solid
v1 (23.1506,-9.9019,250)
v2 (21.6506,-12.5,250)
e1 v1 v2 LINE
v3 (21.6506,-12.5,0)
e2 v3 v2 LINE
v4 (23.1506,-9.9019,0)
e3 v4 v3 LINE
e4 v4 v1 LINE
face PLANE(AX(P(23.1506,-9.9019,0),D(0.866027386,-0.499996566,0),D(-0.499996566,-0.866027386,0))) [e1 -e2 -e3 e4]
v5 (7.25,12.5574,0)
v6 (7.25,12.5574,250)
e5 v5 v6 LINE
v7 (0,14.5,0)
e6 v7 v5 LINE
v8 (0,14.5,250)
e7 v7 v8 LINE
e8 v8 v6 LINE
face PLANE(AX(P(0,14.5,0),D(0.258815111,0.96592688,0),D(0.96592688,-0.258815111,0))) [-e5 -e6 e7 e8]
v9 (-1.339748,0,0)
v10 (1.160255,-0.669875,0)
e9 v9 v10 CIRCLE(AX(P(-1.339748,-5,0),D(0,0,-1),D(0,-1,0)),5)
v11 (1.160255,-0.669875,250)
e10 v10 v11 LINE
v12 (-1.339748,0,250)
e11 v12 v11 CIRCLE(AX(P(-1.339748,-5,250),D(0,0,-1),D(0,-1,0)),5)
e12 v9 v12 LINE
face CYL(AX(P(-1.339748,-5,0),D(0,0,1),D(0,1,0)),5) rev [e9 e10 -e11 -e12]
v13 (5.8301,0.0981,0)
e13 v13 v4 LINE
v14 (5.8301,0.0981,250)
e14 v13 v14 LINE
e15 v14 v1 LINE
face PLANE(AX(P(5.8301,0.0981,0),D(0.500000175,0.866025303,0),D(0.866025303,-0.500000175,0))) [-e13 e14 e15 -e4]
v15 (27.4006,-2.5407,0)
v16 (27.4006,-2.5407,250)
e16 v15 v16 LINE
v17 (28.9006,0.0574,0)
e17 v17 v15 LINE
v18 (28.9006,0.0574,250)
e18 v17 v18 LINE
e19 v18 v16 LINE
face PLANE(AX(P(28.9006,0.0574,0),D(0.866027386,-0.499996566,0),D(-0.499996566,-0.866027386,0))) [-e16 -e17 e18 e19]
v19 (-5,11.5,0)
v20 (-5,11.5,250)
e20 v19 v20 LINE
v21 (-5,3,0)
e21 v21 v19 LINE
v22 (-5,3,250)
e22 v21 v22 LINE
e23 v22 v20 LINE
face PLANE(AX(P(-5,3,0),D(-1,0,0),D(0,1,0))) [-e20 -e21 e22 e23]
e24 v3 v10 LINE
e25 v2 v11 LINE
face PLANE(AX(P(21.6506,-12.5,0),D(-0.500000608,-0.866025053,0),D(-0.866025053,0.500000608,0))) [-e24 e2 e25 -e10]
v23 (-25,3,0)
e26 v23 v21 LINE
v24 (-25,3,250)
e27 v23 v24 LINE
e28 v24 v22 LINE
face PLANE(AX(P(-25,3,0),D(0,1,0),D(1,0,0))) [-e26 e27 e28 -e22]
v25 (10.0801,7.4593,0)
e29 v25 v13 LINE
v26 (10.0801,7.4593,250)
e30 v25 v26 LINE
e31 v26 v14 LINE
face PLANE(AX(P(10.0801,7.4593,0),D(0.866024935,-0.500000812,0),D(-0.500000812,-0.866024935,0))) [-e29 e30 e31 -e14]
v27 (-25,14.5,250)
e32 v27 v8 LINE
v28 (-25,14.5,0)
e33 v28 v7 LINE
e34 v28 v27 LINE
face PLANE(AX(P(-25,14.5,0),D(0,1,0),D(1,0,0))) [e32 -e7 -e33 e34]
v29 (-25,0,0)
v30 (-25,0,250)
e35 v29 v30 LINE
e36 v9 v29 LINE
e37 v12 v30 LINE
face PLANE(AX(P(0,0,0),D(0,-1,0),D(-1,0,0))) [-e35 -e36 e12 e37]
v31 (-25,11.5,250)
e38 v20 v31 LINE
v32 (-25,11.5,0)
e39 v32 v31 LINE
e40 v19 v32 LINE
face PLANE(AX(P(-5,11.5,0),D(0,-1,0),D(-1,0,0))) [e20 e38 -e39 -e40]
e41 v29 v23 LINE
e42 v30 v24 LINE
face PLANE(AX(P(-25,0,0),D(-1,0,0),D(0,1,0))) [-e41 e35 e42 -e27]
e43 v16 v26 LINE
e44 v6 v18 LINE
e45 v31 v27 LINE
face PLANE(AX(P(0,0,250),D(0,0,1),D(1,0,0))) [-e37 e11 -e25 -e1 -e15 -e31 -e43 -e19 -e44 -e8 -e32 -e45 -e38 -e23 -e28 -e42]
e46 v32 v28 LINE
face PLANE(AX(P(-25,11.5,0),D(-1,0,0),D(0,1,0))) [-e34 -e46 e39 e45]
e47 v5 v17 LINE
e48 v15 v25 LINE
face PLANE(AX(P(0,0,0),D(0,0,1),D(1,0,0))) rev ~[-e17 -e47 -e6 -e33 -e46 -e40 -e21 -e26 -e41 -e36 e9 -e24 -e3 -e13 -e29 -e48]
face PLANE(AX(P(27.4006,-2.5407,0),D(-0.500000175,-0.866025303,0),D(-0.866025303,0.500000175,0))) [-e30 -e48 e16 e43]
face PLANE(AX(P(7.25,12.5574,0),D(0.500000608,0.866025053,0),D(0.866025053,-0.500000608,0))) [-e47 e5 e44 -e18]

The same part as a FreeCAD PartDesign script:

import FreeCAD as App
import Part
import Sketcher
from FreeCAD import Vector
Q = App.Units.Quantity


def edges_at(feature, points):
    """Names of the edges that pass closest to the given points."""
    edges = feature.Shape.Edges
    near = lambda p: min(range(len(edges)), key=lambda i: edges[i].distToShape(Part.Vertex(*p))[0])
    return sorted({f"Edge{near(p) + 1}" for p in points})

doc = App.newDocument("Part")
body = doc.addObject("PartDesign::Body", "Body")

# Sketch on XY plane
sketch1 = body.newObject("Sketcher::SketchObject", "Sketch")
sketch1.AttachmentSupport = (doc.getObject("XY_Plane"), [""])
sketch1.MapMode = "FlatFace"
sketch1.addGeometry(Part.LineSegment(Vector(-25, 0, 0), Vector(0, 0, 0)), False)
sketch1.addGeometry(Part.LineSegment(Vector(0, 0, 0), Vector(21.6506, -12.5, 0)), False)
sketch1.addGeometry(Part.LineSegment(Vector(21.6506, -12.5, 0), Vector(23.1506, -9.9019, 0)), False)
sketch1.addGeometry(Part.LineSegment(Vector(23.1506, -9.9019, 0), Vector(5.8301, 0.0981, 0)), False)
sketch1.addGeometry(Part.LineSegment(Vector(5.8301, 0.0981, 0), Vector(10.0801, 7.4593, 0)), False)
sketch1.addGeometry(Part.LineSegment(Vector(10.0801, 7.4593, 0), Vector(27.4006, -2.5407, 0)), False)
sketch1.addGeometry(Part.LineSegment(Vector(27.4006, -2.5407, 0), Vector(28.9006, 0.0574, 0)), False)
sketch1.addGeometry(Part.LineSegment(Vector(28.9006, 0.0574, 0), Vector(7.25, 12.5574, 0)), False)
sketch1.addGeometry(Part.LineSegment(Vector(7.25, 12.5574, 0), Vector(0, 14.5, 0)), False)
sketch1.addGeometry(Part.LineSegment(Vector(0, 14.5, 0), Vector(-25, 14.5, 0)), False)
sketch1.addGeometry(Part.LineSegment(Vector(-25, 14.5, 0), Vector(-25, 11.5, 0)), False)
sketch1.addGeometry(Part.LineSegment(Vector(-25, 11.5, 0), Vector(-5, 11.5, 0)), False)
sketch1.addGeometry(Part.LineSegment(Vector(-5, 11.5, 0), Vector(-5, 3, 0)), False)
sketch1.addGeometry(Part.LineSegment(Vector(-5, 3, 0), Vector(-25, 3, 0)), False)
sketch1.addGeometry(Part.LineSegment(Vector(-25, 3, 0), Vector(-25, 0, 0)), False)
sketch1.addConstraint(Sketcher.Constraint("Coincident", 0, 2, 1, 1))
sketch1.addConstraint(Sketcher.Constraint("Coincident", 1, 2, 2, 1))
sketch1.addConstraint(Sketcher.Constraint("Coincident", 2, 2, 3, 1))
sketch1.addConstraint(Sketcher.Constraint("Coincident", 3, 2, 4, 1))
sketch1.addConstraint(Sketcher.Constraint("Coincident", 4, 2, 5, 1))
sketch1.addConstraint(Sketcher.Constraint("Coincident", 5, 2, 6, 1))
sketch1.addConstraint(Sketcher.Constraint("Coincident", 6, 2, 7, 1))
sketch1.addConstraint(Sketcher.Constraint("Coincident", 7, 2, 8, 1))
sketch1.addConstraint(Sketcher.Constraint("Coincident", 8, 2, 9, 1))
sketch1.addConstraint(Sketcher.Constraint("Coincident", 9, 2, 10, 1))
sketch1.addConstraint(Sketcher.Constraint("Coincident", 10, 2, 11, 1))
sketch1.addConstraint(Sketcher.Constraint("Coincident", 11, 2, 12, 1))
sketch1.addConstraint(Sketcher.Constraint("Coincident", 12, 2, 13, 1))
sketch1.addConstraint(Sketcher.Constraint("Coincident", 13, 2, 14, 1))
sketch1.addConstraint(Sketcher.Constraint("Coincident", 14, 2, 0, 1))
sketch1.addConstraint(Sketcher.Constraint("Horizontal", 0))
sketch1.addConstraint(Sketcher.Constraint("Horizontal", 9))
sketch1.addConstraint(Sketcher.Constraint("Vertical", 10))
sketch1.addConstraint(Sketcher.Constraint("Horizontal", 11))
sketch1.addConstraint(Sketcher.Constraint("Vertical", 12))
sketch1.addConstraint(Sketcher.Constraint("Horizontal", 13))
sketch1.addConstraint(Sketcher.Constraint("Vertical", 14))
sketch1.addConstraint(Sketcher.Constraint("Coincident", 0, 2, -1, 1))
sketch1.addConstraint(Sketcher.Constraint("PointOnObject", 8, 2, -2))
sketch1.addConstraint(Sketcher.Constraint("Perpendicular", 1, 2))
sketch1.addConstraint(Sketcher.Constraint("Perpendicular", 2, 3))
sketch1.addConstraint(Sketcher.Constraint("Perpendicular", 3, 4))
sketch1.addConstraint(Sketcher.Constraint("Perpendicular", 4, 5))
sketch1.addConstraint(Sketcher.Constraint("Perpendicular", 5, 6))
sketch1.addConstraint(Sketcher.Constraint("Perpendicular", 6, 7))
sketch1.addConstraint(Sketcher.Constraint("Vertical", 10, 2, 13, 2))
sketch1.addConstraint(Sketcher.Constraint("Equal", 10, 14))
sketch1.addConstraint(Sketcher.Constraint("Equal", 3, 5))
sketch1.addConstraint(Sketcher.Constraint("Equal", 2, 6))
sketch1.addConstraint(Sketcher.Constraint("Equal", 1, 7))
sketch1.addConstraint(Sketcher.Constraint("DistanceX", 0, 1, 0, 2, Q("25 mm")))
sketch1.addConstraint(Sketcher.Constraint("DistanceX", 11, 1, 11, 2, Q("20 mm")))
sketch1.addConstraint(Sketcher.Constraint("DistanceY", 10, 2, 10, 1, Q("3 mm")))
sketch1.addConstraint(Sketcher.Constraint("Angle", 1, Q("-30 deg")))
sketch1.addConstraint(Sketcher.Constraint("Distance", 1, Q("25 mm")))
sketch1.addConstraint(Sketcher.Constraint("Distance", 2, Q("3 mm")))
sketch1.addConstraint(Sketcher.Constraint("Distance", 3, Q("20 mm")))
sketch1.addConstraint(Sketcher.Constraint("DistanceY", 12, 2, 12, 1, Q("8.5 mm")))
sketch1.addConstraint(Sketcher.Constraint("Distance", 4, Q("8.5 mm")))
pad1 = body.newObject("PartDesign::Pad", "Pad")
pad1.Profile = sketch1
pad1.Length = 250
doc.recompute()

fillet = body.newObject("PartDesign::Fillet", "Fillet")
fillet.Base = (pad1, edges_at(pad1, [(0, 0, 125)]))
fillet.Radius = 5

doc.recompute()
